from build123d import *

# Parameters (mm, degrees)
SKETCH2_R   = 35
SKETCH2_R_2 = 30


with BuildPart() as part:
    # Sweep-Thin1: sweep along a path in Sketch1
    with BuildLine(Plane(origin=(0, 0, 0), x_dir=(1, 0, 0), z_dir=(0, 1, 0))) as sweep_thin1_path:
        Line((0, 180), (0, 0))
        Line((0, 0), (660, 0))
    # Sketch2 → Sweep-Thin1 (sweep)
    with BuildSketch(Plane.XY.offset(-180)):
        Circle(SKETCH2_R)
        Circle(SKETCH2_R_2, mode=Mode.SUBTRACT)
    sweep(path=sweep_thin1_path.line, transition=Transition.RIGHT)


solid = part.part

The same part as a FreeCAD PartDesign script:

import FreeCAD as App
import Part
import Sketcher
Q = App.Units.Quantity

doc = App.newDocument("Part")
params = doc.addObject("Spreadsheet::Sheet", "Params")
for row, (alias, value) in enumerate([
    ("sketch1_diameter", "70 mm"),
    ("sketch1_diameter2", "60 mm"),
    ("sketch2_width", "660 mm"),
    ("sketch2_height", "180 mm"),
], start=1):
    params.set(f"A{row}", alias)
    params.set(f"B{row}", "=" + value)
    params.setAlias(f"B{row}", alias)

body = doc.addObject("PartDesign::Body", "Body")

# Sketch on XY plane
sketch1 = doc.addObject("Sketcher::SketchObject", "Sketch")
body.addObject(sketch1)
sketch1.AttachmentSupport = (doc.XY_Plane, [""])
sketch1.MapMode = "FlatFace"
sketch1.AttachmentOffset = App.Placement(App.Vector(0, 0, -180), App.Rotation())
sketch1.addGeometry(Part.Circle(App.Vector(0, 0, 0), App.Vector(0, 0, 1), 35), False)
sketch1.addGeometry(Part.Circle(App.Vector(0, 0, 0), App.Vector(0, 0, 1), 30), False)
sketch1.addConstraint(Sketcher.Constraint("Coincident", 0, 3, -1, 1))
sketch1.addConstraint(Sketcher.Constraint("Coincident", 1, 3, -1, 1))
sketch1.addConstraint(Sketcher.Constraint("Diameter", 0, Q("70 mm")))
sketch1.addConstraint(Sketcher.Constraint("Diameter", 1, Q("60 mm")))
sketch1.setExpression("Constraints[2]", "Params.sketch1_diameter")
sketch1.setExpression("Constraints[3]", "Params.sketch1_diameter2")

# Sketch on XZ plane
sketch2 = doc.addObject("Sketcher::SketchObject", "Sketch001")
body.addObject(sketch2)
sketch2.AttachmentSupport = (doc.XZ_Plane, [""])
sketch2.MapMode = "FlatFace"
sketch2.addGeometry(Part.LineSegment(App.Vector(0, -180, 0), App.Vector(0, 0, 0)), False)
sketch2.addGeometry(Part.LineSegment(App.Vector(0, 0, 0), App.Vector(660, 0, 0)), False)
sketch2.addConstraint(Sketcher.Constraint("Coincident", 0, 2, 1, 1))
sketch2.addConstraint(Sketcher.Constraint("Vertical", 0))
sketch2.addConstraint(Sketcher.Constraint("Horizontal", 1))
sketch2.addConstraint(Sketcher.Constraint("Coincident", 0, 2, -1, 1))
sketch2.addConstraint(Sketcher.Constraint("DistanceX", 1, 1, 1, 2, Q("660 mm")))
sketch2.addConstraint(Sketcher.Constraint("DistanceY", 0, 1, 0, 2, Q("180 mm")))
sketch2.setExpression("Constraints[4]", "Params.sketch2_width")
sketch2.setExpression("Constraints[5]", "Params.sketch2_height")
doc.recompute()

additivepipe = doc.addObject("PartDesign::AdditivePipe", "AdditivePipe")
body.addObject(additivepipe)
additivepipe.Profile = sketch1
additivepipe.Spine = (sketch2, ["Edge1", "Edge2"])
additivepipe.Transition = "Right corner"

doc.recompute()
